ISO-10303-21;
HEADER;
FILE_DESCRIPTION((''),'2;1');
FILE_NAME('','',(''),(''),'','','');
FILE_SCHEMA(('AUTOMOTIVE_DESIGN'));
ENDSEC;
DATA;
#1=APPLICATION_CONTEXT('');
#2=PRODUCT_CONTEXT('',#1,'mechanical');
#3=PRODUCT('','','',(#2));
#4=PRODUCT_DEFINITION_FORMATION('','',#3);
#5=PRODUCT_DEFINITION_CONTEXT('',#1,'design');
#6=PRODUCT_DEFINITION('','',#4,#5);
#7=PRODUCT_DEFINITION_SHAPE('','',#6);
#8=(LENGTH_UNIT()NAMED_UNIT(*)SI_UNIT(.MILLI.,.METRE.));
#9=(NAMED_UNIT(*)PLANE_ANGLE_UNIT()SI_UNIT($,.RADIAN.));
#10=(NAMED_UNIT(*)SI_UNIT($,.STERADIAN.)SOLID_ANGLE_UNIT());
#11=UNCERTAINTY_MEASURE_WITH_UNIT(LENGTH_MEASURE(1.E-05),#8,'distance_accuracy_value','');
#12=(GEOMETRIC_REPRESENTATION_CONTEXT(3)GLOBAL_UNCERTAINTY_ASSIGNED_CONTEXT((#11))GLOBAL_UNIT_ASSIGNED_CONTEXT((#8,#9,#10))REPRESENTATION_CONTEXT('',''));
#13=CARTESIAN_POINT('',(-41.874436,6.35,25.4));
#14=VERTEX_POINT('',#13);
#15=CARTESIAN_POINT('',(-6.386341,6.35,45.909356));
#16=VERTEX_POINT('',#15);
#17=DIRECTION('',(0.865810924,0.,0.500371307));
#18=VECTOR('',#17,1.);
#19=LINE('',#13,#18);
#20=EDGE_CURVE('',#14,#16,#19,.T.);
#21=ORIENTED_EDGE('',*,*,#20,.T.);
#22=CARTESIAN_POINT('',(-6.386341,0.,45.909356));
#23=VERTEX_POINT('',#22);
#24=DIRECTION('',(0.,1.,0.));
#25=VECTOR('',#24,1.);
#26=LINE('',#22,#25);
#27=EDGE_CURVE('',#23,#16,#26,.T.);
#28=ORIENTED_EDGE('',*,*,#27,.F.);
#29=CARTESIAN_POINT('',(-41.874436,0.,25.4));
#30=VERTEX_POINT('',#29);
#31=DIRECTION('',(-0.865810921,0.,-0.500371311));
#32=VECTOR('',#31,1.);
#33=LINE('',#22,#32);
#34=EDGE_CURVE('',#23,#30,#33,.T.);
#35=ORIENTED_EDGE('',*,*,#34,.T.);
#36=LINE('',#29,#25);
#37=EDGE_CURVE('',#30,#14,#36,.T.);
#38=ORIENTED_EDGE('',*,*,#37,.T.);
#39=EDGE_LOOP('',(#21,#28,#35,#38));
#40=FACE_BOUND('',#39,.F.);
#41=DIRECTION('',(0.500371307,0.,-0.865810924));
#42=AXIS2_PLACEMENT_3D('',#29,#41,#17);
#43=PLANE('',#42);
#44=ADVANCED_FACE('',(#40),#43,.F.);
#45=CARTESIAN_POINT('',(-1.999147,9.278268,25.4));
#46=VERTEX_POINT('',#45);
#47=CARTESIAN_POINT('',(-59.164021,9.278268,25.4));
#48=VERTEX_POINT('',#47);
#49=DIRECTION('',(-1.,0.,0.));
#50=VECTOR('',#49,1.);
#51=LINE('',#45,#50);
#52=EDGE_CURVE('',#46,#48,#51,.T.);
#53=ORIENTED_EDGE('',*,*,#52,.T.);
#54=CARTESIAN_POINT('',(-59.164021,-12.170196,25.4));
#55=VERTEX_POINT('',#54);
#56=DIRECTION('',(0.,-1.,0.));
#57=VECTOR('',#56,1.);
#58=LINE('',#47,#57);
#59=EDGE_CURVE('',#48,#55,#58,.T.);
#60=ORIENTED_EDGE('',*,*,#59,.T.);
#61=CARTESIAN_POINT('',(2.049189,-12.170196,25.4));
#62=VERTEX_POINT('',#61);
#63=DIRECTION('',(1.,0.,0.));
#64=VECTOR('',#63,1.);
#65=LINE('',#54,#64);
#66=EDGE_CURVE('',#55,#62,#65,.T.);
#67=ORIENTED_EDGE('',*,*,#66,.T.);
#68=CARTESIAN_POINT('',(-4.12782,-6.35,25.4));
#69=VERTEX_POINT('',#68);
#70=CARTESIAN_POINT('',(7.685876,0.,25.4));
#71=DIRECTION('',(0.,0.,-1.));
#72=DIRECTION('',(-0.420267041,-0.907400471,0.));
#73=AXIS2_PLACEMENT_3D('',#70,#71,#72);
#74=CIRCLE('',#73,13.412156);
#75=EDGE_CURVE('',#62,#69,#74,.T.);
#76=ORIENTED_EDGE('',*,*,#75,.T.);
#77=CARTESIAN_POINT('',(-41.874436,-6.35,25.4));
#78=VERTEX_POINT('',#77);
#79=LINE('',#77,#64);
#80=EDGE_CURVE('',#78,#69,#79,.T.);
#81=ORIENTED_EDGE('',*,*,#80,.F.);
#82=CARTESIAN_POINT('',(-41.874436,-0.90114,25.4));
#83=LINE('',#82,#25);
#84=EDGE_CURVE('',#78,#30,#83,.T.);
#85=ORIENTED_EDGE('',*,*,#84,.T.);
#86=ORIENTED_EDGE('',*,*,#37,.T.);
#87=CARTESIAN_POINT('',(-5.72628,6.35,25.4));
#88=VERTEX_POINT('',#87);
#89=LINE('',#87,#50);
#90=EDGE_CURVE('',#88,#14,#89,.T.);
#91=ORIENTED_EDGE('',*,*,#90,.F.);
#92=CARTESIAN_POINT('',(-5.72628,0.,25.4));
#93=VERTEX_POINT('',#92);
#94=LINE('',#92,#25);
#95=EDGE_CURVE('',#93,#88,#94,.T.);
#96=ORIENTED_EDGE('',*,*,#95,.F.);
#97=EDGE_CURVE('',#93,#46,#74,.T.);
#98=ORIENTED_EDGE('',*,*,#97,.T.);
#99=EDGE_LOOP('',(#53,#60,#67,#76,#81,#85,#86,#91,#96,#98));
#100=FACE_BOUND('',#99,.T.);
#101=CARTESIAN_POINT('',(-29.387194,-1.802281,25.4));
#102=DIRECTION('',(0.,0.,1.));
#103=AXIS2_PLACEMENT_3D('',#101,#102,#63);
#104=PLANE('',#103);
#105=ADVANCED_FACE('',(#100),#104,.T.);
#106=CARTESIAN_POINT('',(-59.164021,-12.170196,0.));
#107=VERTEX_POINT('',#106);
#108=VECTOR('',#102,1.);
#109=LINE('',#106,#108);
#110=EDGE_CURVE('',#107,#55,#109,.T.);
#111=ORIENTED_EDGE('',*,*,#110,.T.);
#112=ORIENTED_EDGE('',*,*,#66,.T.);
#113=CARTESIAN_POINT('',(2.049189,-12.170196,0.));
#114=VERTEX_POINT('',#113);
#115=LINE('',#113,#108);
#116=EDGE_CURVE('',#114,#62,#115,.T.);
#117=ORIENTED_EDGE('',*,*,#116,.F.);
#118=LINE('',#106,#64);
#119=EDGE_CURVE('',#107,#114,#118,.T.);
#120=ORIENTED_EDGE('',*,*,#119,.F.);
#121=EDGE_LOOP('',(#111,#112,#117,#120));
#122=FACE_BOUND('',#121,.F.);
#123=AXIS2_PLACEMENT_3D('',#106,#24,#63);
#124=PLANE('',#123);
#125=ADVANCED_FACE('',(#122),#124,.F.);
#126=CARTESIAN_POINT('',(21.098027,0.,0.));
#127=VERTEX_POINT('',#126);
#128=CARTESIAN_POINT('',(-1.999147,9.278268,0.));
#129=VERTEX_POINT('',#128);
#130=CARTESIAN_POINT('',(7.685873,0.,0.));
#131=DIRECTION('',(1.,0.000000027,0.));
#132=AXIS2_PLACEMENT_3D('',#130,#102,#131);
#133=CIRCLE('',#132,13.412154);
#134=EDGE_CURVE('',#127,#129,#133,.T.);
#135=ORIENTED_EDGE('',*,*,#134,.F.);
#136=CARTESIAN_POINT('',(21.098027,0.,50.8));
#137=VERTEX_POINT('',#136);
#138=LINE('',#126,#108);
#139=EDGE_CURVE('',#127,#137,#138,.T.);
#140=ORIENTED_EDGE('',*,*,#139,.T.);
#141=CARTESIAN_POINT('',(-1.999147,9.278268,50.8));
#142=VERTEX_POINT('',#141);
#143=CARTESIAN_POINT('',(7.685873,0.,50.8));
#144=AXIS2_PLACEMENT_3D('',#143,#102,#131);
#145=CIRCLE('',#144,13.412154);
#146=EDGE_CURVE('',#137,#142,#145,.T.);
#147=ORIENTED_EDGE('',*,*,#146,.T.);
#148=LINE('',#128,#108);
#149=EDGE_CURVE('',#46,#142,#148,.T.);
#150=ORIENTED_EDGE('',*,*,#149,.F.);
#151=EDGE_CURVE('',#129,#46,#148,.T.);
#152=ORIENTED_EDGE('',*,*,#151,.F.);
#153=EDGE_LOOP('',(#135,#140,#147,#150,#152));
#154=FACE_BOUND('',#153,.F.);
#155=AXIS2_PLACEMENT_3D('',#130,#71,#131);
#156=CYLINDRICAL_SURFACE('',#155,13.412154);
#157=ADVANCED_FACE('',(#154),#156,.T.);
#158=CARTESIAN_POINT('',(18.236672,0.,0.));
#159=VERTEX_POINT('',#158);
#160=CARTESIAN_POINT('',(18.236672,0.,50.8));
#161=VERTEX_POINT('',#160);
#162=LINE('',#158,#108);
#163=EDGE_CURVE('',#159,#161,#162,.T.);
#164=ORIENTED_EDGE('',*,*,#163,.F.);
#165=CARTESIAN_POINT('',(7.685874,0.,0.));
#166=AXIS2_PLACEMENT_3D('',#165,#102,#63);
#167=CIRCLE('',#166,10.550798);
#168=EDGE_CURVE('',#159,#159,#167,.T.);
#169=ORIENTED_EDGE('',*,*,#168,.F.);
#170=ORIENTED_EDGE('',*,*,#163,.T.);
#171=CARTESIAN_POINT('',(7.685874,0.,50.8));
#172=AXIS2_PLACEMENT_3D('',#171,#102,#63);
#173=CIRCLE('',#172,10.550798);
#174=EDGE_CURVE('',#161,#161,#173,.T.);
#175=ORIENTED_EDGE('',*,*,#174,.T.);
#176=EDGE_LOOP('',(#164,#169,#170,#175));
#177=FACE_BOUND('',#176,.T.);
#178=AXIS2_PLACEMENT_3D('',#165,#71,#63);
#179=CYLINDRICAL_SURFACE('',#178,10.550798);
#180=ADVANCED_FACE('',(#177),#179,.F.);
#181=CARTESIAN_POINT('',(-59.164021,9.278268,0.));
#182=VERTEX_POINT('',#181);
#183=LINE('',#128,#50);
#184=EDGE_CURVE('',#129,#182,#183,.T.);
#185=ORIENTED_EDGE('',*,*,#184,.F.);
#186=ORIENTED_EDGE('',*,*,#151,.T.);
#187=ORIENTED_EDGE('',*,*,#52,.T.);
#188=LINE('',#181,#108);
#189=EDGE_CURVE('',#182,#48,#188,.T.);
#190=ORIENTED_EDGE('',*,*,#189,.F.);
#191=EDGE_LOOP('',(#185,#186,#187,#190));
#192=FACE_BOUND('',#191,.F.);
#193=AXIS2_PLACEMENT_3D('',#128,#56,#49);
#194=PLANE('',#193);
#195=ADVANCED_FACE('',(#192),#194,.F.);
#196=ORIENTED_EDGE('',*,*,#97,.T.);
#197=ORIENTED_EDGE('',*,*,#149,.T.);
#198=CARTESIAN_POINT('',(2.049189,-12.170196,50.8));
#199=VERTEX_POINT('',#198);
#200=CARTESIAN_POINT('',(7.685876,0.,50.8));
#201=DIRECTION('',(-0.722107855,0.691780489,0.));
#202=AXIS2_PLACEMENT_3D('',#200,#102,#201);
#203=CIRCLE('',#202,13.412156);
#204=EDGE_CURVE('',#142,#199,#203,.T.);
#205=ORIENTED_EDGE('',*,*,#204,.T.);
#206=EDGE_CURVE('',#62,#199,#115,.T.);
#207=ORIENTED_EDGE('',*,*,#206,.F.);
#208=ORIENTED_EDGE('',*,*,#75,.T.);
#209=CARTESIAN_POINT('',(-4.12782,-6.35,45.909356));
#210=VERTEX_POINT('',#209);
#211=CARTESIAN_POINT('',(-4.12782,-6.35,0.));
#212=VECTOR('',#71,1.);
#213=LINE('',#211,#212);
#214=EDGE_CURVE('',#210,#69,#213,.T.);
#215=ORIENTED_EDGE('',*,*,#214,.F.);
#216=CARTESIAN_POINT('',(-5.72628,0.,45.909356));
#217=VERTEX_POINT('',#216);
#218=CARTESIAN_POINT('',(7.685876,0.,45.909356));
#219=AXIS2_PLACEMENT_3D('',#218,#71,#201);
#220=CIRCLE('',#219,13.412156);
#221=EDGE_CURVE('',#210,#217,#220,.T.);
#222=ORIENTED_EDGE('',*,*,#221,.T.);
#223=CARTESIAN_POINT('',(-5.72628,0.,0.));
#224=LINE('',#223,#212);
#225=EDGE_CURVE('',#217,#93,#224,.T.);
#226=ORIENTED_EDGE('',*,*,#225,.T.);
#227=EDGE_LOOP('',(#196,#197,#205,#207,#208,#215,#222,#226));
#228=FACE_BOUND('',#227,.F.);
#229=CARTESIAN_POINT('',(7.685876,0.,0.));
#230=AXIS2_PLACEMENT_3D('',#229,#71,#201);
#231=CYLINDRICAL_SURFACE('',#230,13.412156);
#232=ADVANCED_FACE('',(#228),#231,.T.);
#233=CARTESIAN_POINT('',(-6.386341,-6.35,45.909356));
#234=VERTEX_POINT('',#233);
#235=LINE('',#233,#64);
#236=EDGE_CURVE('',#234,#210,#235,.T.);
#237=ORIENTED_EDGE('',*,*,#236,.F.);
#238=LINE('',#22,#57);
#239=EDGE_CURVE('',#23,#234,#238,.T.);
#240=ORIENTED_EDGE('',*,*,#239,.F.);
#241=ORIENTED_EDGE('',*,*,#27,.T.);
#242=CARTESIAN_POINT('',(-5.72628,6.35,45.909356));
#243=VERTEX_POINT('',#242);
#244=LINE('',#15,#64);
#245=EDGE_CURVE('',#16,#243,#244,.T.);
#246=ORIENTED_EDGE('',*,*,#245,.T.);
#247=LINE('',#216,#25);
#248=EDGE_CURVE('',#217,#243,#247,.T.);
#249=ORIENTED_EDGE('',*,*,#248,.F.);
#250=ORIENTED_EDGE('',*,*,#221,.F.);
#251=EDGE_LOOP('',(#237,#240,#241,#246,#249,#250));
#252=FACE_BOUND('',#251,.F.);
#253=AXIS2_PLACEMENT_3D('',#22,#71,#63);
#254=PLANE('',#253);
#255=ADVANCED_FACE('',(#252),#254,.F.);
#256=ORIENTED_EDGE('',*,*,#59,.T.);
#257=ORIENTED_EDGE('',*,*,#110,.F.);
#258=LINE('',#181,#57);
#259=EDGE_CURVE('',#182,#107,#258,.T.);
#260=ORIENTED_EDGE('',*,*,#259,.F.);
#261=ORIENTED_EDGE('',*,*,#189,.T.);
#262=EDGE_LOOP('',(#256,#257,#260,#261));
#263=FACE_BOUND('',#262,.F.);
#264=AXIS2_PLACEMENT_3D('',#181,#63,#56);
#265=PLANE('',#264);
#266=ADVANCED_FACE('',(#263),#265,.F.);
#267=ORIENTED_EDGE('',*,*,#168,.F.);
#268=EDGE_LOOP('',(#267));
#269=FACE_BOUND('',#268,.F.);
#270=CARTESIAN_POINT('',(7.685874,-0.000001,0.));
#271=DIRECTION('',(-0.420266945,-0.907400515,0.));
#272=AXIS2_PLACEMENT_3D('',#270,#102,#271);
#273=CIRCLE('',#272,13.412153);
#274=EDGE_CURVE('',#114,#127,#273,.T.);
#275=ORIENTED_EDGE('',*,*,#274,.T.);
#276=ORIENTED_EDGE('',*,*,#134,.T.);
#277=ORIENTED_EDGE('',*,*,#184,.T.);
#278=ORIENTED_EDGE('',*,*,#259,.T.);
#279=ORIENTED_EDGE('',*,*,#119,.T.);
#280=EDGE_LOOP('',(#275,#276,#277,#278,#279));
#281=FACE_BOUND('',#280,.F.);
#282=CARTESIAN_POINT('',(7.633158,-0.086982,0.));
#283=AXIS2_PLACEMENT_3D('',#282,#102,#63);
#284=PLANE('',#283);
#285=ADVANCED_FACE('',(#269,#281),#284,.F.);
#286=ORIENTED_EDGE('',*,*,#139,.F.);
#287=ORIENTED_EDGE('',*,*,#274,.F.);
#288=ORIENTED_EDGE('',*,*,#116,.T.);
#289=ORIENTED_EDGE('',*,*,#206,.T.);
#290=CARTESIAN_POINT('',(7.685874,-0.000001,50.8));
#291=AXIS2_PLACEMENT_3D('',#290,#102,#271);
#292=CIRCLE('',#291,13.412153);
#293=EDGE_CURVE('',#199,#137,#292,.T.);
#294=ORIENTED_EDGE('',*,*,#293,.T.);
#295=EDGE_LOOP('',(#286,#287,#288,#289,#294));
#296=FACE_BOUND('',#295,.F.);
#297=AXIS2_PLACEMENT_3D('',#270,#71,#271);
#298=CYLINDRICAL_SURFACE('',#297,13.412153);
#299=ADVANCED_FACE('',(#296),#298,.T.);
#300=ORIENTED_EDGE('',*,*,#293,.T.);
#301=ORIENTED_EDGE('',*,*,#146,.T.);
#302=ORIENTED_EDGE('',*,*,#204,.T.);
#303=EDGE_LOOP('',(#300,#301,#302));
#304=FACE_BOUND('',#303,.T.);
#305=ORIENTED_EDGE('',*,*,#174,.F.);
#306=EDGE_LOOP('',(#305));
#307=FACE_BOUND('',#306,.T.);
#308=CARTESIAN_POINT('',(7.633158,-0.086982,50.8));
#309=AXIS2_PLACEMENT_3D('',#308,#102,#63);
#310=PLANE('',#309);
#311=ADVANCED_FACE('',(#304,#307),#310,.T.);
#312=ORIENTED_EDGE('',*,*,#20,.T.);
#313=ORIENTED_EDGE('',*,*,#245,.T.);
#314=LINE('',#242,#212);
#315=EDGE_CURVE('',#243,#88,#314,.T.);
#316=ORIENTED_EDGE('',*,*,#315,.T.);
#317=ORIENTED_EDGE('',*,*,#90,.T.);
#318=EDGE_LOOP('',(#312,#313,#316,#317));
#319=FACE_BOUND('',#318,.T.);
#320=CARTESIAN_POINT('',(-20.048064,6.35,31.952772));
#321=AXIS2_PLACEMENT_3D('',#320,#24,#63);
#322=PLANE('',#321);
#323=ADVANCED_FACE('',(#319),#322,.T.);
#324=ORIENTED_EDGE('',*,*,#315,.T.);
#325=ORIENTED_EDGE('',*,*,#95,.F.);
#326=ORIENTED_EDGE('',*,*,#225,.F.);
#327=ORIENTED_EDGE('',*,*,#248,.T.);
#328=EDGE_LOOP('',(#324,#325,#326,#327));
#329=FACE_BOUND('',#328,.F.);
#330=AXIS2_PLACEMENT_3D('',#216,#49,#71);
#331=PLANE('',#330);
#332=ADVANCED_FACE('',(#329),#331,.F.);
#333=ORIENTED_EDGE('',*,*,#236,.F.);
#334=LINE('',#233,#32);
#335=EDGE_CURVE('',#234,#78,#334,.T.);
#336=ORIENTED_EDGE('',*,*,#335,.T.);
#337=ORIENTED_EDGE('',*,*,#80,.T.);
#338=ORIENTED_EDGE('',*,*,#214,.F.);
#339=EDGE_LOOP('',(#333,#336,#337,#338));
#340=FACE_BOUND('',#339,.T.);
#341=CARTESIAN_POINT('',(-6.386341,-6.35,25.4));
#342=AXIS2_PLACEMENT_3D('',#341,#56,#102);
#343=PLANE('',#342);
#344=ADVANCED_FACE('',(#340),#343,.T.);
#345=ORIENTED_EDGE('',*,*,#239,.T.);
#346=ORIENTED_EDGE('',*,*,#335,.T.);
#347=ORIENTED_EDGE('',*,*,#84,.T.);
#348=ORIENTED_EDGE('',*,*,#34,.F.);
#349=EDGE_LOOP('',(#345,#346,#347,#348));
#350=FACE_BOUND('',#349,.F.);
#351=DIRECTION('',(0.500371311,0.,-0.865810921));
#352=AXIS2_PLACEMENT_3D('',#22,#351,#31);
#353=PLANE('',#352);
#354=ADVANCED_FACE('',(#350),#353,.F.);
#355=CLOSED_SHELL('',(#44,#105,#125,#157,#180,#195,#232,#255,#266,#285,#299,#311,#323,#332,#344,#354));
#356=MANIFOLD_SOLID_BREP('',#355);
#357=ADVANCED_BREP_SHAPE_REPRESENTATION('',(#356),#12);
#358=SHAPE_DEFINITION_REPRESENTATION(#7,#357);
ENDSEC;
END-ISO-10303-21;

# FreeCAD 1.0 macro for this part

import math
import FreeCAD as App
import Part
import Sketcher
from FreeCAD import Vector
Q = App.Units.Quantity

doc = App.newDocument("Part")
params = doc.addObject("Spreadsheet::Sheet", "Params")
for row, (alias, value) in enumerate([
    ("pad1_length", "1 in"),
    ("pad2_length", "2 in"),
    ("pad3_length", "0.25 in"),
    ("sketch4_width", "0.25 in"),
    ("pad4_length", "0.1 in"),
    ("pad5_length", "0.25 in"),
], start=1):
    params.set(f"A{row}", alias)
    params.set(f"B{row}", "=" + value)
    params.setAlias(f"B{row}", alias)

body = doc.addObject("PartDesign::Body", "Body")

# Sketch on XY plane
sketch1 = body.newObject("Sketcher::SketchObject", "Sketch")
sketch1.AttachmentSupport = (doc.getObject("XY_Plane"), [""])
sketch1.MapMode = "FlatFace"
sketch1.addGeometry([
    Part.LineSegment(Vector(-59.164021, 9.278268, 0), Vector(-59.164021, -12.170196, 0)),
    Part.LineSegment(Vector(-59.164021, -12.170196, 0), Vector(2.049189, -12.170196, 0)),
    Part.ArcOfCircle(Part.Circle(Vector(7.685876, 0, 0), Vector(0, 0, 1), 13.412156), math.radians(136.228784), math.radians(245.148552)),
    Part.LineSegment(Vector(-1.999147, 9.278268, 0), Vector(-59.164021, 9.278268, 0)),
], False)
sketch1.addConstraint([
    Sketcher.Constraint("Coincident", 0, 2, 1, 1),
    Sketcher.Constraint("Coincident", 1, 2, 2, 2),
    Sketcher.Constraint("Coincident", 2, 1, 3, 1),
    Sketcher.Constraint("Coincident", 3, 2, 0, 1),
    Sketcher.Constraint("Vertical", 0),
    Sketcher.Constraint("Horizontal", 1),
    Sketcher.Constraint("Horizontal", 3),
    Sketcher.Constraint("PointOnObject", 2, 3, -1),
    Sketcher.Constraint("Radius", 2, Q("13.412156 mm")),
    Sketcher.Constraint("DistanceX", 2, 1, 2, 3, Q("0.3813001 in")),
    Sketcher.Constraint("DistanceX", 1, 1, 1, 2, Q("61.21321 mm")),
    Sketcher.Constraint("DistanceX", 3, 2, 3, 1, Q("57.164874 mm")),
    Sketcher.Constraint("DistanceX", 0, 2, -1, 1, Q("59.164021 mm")),
])
pad1 = body.newObject("PartDesign::Pad", "Pad")
pad1.Profile = sketch1
pad1.setExpression("Length", "Params.pad1_length")

# Sketch on XY plane
sketch2 = body.newObject("Sketcher::SketchObject", "Sketch001")
sketch2.AttachmentSupport = (doc.getObject("XY_Plane"), [""])
sketch2.MapMode = "FlatFace"
sketch2.addGeometry([
    Part.ArcOfCircle(Part.Circle(Vector(7.685873, 0, 0), Vector(0, 0, 1), 13.412154), math.radians(0.000002), math.radians(136.228773)),
    Part.ArcOfCircle(Part.Circle(Vector(7.685876, 0, 0), Vector(0, 0, 1), 13.412156), math.radians(136.228784), math.radians(245.148552)),
    Part.ArcOfCircle(Part.Circle(Vector(7.685874, -0.000001, 0), Vector(0, 0, 1), 13.412153), math.radians(-114.851442), math.radians(0.000005)),
    Part.Circle(Vector(7.685874, 0, 0), Vector(0, 0, 1), 10.550798),
], False)
sketch2.addConstraint([
    Sketcher.Constraint("Tangent", 0, 2, 1, 1),
    Sketcher.Constraint("Tangent", 1, 2, 2, 1),
    Sketcher.Constraint("Tangent", 2, 2, 0, 1),
    Sketcher.Constraint("Coincident", 3, 3, 0, 3),
    Sketcher.Constraint("PointOnObject", 0, 3, -1),
    Sketcher.Constraint("PointOnObject", 2, 2, -1),
    Sketcher.Constraint("Diameter", 3, Q("21.101596 mm")),
    Sketcher.Constraint("Radius", 0, Q("13.412154 mm")),
    Sketcher.Constraint("DistanceX", 0, 2, 0, 3, Q("0.3813 in")),
    Sketcher.Constraint("DistanceX", -1, 1, 1, 2, Q("2.049189 mm")),
    Sketcher.Constraint("DistanceX", -1, 1, 0, 3, Q("7.685873 mm")),
])
pad2 = body.newObject("PartDesign::Pad", "Pad001")
pad2.Profile = sketch2
pad2.setExpression("Length", "Params.pad2_length")

# Sketch on XZ plane
sketch3 = body.newObject("Sketcher::SketchObject", "Sketch002")
sketch3.AttachmentSupport = (doc.getObject("XZ_Plane"), [""])
sketch3.MapMode = "FlatFace"
sketch3.addGeometry([
    Part.LineSegment(Vector(-6.386341, 45.909356, 0), Vector(-43.499414, 24.460889, 0)),
    Part.LineSegment(Vector(-43.499414, 24.460889, 0), Vector(-43.499414, 23.014925, 0)),
    Part.LineSegment(Vector(-43.499414, 23.014925, 0), Vector(-6.386341, 23.014925, 0)),
    Part.LineSegment(Vector(-6.386341, 23.014925, 0), Vector(-6.386341, 45.909356, 0)),
], False)
sketch3.addConstraint([
    Sketcher.Constraint("Coincident", 0, 2, 1, 1),
    Sketcher.Constraint("Coincident", 1, 2, 2, 1),
    Sketcher.Constraint("Coincident", 2, 2, 3, 1),
    Sketcher.Constraint("Coincident", 3, 2, 0, 1),
    Sketcher.Constraint("Vertical", 1),
    Sketcher.Constraint("Horizontal", 2),
    Sketcher.Constraint("Vertical", 3),
    Sketcher.Constraint("Distance", 0, Q("42.865101 mm")),
    Sketcher.Constraint("DistanceY", 3, 1, 3, 2, Q("22.894431 mm")),
    Sketcher.Constraint("DistanceX", 2, 1, 2, 2, Q("37.113073 mm")),
    Sketcher.Constraint("DistanceY", -1, 1, 0, 2, Q("24.460889 mm")),
    Sketcher.Constraint("DistanceX", 2, 2, -1, 1, Q("6.386341 mm")),
])
pad3 = body.newObject("PartDesign::Pad", "Pad002")
pad3.Profile = sketch3
pad3.setExpression("Length", "Params.pad3_length")

# Sketch on YZ plane
sketch4 = body.newObject("Sketcher::SketchObject", "Sketch003")
sketch4.AttachmentSupport = (doc.getObject("YZ_Plane"), [""])
sketch4.MapMode = "FlatFace"
sketch4.AttachmentOffset = App.Placement(Vector(0, 0, -6.386341), App.Rotation())
sketch4.addGeometry([
    Part.LineSegment(Vector(-6.35, 45.909356, 0), Vector(-6.35, 25.4, 0)),
    Part.LineSegment(Vector(-6.35, 25.4, 0), Vector(0, 25.4, 0)),
    Part.LineSegment(Vector(0, 25.4, 0), Vector(0, 45.909356, 0)),
    Part.LineSegment(Vector(0, 45.909356, 0), Vector(-6.35, 45.909356, 0)),
], False)
sketch4.addConstraint([
    Sketcher.Constraint("Coincident", 0, 2, 1, 1),
    Sketcher.Constraint("Coincident", 1, 2, 2, 1),
    Sketcher.Constraint("Coincident", 2, 2, 3, 1),
    Sketcher.Constraint("Coincident", 3, 2, 0, 1),
    Sketcher.Constraint("Vertical", 0),
    Sketcher.Constraint("Horizontal", 1),
    Sketcher.Constraint("Vertical", 2),
    Sketcher.Constraint("Horizontal", 3),
    Sketcher.Constraint("PointOnObject", 1, 2, -2),
    Sketcher.Constraint("DistanceY", -1, 1, 0, 2, Q("1 in")),
    Sketcher.Constraint("DistanceX", 1, 1, 1, 2, Q("0.25 in")),
    Sketcher.Constraint("DistanceY", 0, 2, 0, 1, Q("20.509356 mm")),
])
sketch4.setExpression("Constraints[10]", "Params.sketch4_width")
pad4 = body.newObject("PartDesign::Pad", "Pad003")
pad4.Profile = sketch4
pad4.setExpression("Length", "Params.pad4_length")

# Sketch on XZ plane
sketch5 = body.newObject("Sketcher::SketchObject", "Sketch004")
sketch5.AttachmentSupport = (doc.getObject("XZ_Plane"), [""])
sketch5.MapMode = "FlatFace"
sketch5.addGeometry([
    Part.LineSegment(Vector(-6.386341, 45.909356, 0), Vector(-5.72628, 45.909356, 0)),
    Part.LineSegment(Vector(-5.72628, 45.909356, 0), Vector(-5.72628, 25.4, 0)),
    Part.LineSegment(Vector(-5.72628, 25.4, 0), Vector(-41.874436, 25.4, 0)),
    Part.LineSegment(Vector(-41.874436, 25.4, 0), Vector(-6.386341, 45.909356, 0)),
], False)
sketch5.addConstraint([
    Sketcher.Constraint("Coincident", 0, 2, 1, 1),
    Sketcher.Constraint("Coincident", 1, 2, 2, 1),
    Sketcher.Constraint("Coincident", 2, 2, 3, 1),
    Sketcher.Constraint("Coincident", 3, 2, 0, 1),
    Sketcher.Constraint("Horizontal", 0),
    Sketcher.Constraint("Vertical", 1),
    Sketcher.Constraint("Horizontal", 2),
    Sketcher.Constraint("DistanceY", -1, 1, 1, 2, Q("1 in")),
    Sketcher.Constraint("DistanceX", 2, 2, -1, 1, Q("1.6485998 in")),
    Sketcher.Constraint("DistanceX", 0, 1, 0, 2, Q("0.660061 mm")),
    Sketcher.Constraint("DistanceX", 2, 2, 2, 1, Q("36.148156 mm")),
    Sketcher.Constraint("DistanceY", 1, 2, 1, 1, Q("20.509356 mm")),
])
pad5 = body.newObject("PartDesign::Pad", "Pad004")
pad5.Profile = sketch5
pad5.setExpression("Length", "Params.pad5_length")
pad5.Reversed = True

doc.recompute()
